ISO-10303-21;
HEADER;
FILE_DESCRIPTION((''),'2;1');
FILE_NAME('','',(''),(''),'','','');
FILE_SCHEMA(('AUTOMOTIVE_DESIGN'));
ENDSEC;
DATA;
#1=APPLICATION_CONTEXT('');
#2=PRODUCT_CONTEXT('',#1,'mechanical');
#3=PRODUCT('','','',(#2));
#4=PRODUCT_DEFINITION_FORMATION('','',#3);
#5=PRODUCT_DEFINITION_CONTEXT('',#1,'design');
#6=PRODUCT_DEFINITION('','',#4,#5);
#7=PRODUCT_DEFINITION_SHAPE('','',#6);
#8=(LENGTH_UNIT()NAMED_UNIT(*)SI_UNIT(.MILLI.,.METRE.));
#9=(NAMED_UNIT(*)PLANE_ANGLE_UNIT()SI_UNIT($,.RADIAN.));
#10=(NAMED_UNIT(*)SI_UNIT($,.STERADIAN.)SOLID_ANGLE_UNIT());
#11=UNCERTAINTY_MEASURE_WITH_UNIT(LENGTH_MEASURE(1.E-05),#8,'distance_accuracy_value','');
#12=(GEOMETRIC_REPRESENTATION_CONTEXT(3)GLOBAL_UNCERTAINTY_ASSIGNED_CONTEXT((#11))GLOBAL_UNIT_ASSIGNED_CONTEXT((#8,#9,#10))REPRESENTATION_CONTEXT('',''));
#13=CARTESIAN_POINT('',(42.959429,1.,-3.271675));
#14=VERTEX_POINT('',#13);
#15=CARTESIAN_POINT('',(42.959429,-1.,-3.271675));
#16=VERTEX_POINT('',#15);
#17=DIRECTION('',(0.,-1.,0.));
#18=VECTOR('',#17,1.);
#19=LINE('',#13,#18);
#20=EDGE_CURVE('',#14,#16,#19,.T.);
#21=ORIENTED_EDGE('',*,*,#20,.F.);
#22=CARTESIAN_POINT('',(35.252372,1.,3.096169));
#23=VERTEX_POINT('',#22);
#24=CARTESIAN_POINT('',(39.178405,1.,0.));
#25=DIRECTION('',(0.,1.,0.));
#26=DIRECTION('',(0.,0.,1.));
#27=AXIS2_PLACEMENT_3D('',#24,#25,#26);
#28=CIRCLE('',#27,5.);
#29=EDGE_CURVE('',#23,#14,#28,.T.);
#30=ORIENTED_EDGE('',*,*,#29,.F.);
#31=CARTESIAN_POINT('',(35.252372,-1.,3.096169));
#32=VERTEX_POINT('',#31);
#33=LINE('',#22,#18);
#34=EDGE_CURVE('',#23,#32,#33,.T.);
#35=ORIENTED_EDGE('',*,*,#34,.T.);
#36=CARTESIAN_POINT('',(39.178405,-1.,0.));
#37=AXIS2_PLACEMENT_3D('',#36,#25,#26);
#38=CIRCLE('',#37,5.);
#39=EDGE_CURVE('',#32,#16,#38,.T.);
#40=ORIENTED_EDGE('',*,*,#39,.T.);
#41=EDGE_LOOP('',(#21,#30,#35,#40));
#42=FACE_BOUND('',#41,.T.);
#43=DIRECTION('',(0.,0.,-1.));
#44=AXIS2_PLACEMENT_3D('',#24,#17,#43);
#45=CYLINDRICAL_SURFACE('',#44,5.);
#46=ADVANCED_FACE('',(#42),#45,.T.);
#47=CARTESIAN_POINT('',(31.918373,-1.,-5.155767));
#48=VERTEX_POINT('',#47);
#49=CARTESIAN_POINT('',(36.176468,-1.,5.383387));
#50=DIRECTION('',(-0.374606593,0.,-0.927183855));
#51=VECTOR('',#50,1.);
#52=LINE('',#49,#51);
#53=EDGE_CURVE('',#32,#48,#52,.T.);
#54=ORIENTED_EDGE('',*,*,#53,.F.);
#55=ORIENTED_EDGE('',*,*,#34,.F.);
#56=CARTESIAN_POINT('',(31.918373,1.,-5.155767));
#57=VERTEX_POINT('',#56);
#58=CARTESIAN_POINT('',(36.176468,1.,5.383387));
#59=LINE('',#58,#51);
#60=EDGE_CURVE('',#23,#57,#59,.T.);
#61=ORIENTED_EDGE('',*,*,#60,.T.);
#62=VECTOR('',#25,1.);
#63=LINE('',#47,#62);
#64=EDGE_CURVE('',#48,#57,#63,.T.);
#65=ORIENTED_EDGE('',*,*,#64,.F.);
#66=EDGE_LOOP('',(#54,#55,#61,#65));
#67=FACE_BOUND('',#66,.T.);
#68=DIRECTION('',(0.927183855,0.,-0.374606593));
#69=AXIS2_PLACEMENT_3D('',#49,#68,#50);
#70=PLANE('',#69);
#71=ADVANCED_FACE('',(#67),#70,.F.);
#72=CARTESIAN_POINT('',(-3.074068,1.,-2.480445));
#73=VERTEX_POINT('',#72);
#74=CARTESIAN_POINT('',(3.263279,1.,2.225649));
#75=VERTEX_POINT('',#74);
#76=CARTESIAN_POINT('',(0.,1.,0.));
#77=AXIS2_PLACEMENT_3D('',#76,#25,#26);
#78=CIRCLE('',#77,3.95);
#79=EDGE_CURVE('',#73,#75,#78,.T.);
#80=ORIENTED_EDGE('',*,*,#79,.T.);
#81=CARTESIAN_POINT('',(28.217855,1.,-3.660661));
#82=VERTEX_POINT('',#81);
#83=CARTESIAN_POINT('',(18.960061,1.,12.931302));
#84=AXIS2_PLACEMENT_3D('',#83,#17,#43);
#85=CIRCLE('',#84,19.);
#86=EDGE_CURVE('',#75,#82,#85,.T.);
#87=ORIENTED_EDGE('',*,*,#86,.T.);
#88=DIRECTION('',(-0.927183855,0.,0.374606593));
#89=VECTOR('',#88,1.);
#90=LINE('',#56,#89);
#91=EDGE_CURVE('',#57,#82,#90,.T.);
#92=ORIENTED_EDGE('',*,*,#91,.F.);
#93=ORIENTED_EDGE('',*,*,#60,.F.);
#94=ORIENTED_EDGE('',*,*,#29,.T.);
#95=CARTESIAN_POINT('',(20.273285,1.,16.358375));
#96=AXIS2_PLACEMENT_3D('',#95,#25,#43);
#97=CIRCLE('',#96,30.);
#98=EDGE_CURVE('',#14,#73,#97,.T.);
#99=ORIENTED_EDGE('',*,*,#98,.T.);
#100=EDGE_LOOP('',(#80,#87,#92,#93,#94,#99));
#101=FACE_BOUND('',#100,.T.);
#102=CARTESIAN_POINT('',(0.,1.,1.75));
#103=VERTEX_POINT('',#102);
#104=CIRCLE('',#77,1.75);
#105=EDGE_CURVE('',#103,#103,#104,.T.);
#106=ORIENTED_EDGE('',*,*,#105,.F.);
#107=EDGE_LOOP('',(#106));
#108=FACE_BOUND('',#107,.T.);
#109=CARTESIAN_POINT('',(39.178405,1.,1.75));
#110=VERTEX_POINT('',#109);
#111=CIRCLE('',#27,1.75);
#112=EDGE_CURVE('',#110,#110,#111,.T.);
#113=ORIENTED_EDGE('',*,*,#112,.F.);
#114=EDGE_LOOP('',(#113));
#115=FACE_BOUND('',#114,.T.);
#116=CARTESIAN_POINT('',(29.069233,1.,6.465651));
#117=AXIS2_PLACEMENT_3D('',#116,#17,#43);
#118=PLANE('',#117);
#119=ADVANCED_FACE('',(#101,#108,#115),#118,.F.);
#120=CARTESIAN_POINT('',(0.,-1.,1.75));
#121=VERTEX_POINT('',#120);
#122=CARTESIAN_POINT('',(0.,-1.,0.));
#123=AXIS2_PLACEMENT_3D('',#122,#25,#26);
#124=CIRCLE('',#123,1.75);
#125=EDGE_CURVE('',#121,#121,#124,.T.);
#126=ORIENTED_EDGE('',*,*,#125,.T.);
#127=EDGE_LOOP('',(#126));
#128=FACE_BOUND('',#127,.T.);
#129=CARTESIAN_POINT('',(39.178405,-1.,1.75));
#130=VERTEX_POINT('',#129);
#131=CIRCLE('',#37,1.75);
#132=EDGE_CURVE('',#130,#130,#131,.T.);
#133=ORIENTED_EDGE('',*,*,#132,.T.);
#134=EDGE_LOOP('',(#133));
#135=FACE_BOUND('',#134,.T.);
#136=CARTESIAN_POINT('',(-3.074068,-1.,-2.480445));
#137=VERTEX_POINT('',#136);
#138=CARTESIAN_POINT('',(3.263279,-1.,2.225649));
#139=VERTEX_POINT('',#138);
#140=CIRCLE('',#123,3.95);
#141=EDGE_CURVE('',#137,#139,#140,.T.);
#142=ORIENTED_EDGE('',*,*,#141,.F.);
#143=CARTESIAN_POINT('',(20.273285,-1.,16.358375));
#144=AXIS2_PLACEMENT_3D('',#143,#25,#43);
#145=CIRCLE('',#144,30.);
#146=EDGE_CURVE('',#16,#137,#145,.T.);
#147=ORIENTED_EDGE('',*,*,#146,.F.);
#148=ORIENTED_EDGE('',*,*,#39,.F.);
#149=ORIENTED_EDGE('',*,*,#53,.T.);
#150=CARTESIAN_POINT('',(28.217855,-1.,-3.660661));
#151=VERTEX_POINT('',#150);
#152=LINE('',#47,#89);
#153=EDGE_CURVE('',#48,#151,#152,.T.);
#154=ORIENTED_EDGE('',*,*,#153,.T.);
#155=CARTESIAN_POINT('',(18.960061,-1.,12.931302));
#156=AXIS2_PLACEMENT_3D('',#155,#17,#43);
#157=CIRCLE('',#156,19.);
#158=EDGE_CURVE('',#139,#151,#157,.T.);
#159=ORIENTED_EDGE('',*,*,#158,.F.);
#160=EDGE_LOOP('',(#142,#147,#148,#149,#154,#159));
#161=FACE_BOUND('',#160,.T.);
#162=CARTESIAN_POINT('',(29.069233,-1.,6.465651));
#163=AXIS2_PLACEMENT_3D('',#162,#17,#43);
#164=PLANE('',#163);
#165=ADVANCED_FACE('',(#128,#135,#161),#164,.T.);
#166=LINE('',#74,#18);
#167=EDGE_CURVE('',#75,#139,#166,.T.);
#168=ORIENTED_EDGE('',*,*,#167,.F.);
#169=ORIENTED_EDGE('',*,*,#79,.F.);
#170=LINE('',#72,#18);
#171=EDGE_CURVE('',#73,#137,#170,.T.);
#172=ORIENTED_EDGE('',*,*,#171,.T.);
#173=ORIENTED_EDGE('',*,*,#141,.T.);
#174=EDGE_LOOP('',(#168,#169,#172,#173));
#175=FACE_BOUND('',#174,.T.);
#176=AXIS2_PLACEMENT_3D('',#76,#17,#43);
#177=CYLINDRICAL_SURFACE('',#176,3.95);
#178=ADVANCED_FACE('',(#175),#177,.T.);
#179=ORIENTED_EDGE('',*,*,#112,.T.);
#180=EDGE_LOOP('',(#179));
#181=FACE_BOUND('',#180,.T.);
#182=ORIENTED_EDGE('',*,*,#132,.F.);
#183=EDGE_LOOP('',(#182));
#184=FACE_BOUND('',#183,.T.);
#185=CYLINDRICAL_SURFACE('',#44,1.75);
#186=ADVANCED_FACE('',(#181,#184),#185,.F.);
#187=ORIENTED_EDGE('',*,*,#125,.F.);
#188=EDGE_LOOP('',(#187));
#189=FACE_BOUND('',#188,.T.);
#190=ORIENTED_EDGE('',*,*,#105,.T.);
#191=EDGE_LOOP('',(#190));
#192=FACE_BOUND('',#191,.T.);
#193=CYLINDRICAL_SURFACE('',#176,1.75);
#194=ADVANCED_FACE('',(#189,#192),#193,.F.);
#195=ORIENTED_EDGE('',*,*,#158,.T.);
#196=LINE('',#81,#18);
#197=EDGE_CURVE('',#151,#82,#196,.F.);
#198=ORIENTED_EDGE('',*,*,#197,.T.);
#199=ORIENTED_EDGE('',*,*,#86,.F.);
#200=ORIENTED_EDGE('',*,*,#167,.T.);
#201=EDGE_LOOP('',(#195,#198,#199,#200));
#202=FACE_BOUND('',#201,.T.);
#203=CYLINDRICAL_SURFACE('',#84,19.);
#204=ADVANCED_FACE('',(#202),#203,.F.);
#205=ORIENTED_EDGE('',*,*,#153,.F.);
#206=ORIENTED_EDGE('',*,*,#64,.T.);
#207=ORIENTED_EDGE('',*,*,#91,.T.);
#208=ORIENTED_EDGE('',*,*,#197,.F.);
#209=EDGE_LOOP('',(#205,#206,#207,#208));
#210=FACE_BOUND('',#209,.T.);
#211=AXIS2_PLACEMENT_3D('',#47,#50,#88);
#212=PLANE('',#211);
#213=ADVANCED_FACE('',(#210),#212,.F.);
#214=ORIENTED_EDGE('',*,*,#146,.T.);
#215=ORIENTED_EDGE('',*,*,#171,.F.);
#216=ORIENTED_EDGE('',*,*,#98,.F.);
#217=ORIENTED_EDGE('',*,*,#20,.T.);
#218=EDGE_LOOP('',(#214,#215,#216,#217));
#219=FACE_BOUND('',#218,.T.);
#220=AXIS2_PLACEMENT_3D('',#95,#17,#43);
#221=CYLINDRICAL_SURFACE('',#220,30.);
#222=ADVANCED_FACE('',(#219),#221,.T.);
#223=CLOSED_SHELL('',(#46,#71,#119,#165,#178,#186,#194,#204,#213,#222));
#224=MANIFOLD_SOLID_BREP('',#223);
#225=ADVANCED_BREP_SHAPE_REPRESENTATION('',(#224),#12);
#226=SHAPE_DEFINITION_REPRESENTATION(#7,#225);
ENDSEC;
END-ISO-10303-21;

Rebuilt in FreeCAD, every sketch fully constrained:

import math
import FreeCAD as App
import Part
import Sketcher
Q = App.Units.Quantity

doc = App.newDocument("Part")
body = doc.addObject("PartDesign::Body", "Body")

# Sketch on XZ plane
sketch1 = body.newObject("Sketcher::SketchObject", "Sketch")
sketch1.AttachmentSupport = (doc.getObject("XZ_Plane"), [""])
sketch1.MapMode = "FlatFace"
sketch1.addGeometry([
    Part.ArcOfCircle(Part.Circle(App.Vector(0, 0, 0), App.Vector(0, 0, 1), 4), math.radians(34), math.radians(219)),  # 0
    Part.ArcOfCircle(Part.Circle(App.Vector(19, 12.9, 0), App.Vector(0, 0, 1), 19), math.radians(-146), math.radians(-33)),  # 1
    Part.ArcOfCircle(Part.Circle(App.Vector(39.2, 0, 0), App.Vector(0, 0, 1), 5), math.radians(-41), math.radians(147)),  # 2
    Part.ArcOfCircle(Part.Circle(App.Vector(20.3, 16.4, 0), App.Vector(0, 0, 1), 30), math.radians(-141), math.radians(-41)),  # 3
    Part.Circle(App.Vector(0, 0, 0), App.Vector(0, 0, 1), 1.8),  # 4
    Part.Circle(App.Vector(39.2, 0, 0), App.Vector(0, 0, 1), 1.8),  # 5
], False)
sketch1.addConstraint([
    Sketcher.Constraint("Tangent", 0, 1, 1, 1),
    Sketcher.Constraint("Tangent", 1, 2, 2, 2),
    Sketcher.Constraint("Tangent", 2, 1, 3, 2),
    Sketcher.Constraint("Tangent", 3, 1, 0, 2),
    Sketcher.Constraint("Coincident", 0, 3, -1, 1),
    Sketcher.Constraint("Coincident", 4, 3, -1, 1),
    Sketcher.Constraint("Coincident", 5, 3, 2, 3),
    Sketcher.Constraint("Equal", 4, 5),
    Sketcher.Constraint("PointOnObject", 2, 3, -1),
    Sketcher.Constraint("Radius", 1, Q("19 mm")),
    Sketcher.Constraint("Radius", 2, Q("5 mm")),
    Sketcher.Constraint("Radius", 3, Q("30 mm")),
    Sketcher.Constraint("Diameter", 4, Q("3.5 mm")),
    Sketcher.Constraint("Radius", 0, Q("3.95 mm")),
    Sketcher.Constraint("DistanceX", -1, 1, 1, 3, Q("18.960061 mm")),
])
pad1 = body.newObject("PartDesign::Pad", "Pad")
pad1.Profile = sketch1
pad1.Length = 2
pad1.Midplane = True

# Sketch on XZ plane
sketch2 = body.newObject("Sketcher::SketchObject", "Sketch001")
sketch2.AttachmentSupport = (doc.getObject("XZ_Plane"), [""])
sketch2.MapMode = "FlatFace"
sketch2.addGeometry([
    Part.LineSegment(App.Vector(36, 5, 0), App.Vector(32, -5, 0)),
    Part.LineSegment(App.Vector(32, -5, 0), App.Vector(14, 2, 0)),
    Part.LineSegment(App.Vector(14, 2, 0), App.Vector(18, 13, 0)),
    Part.LineSegment(App.Vector(18, 13, 0), App.Vector(36, 5, 0)),
], False)
sketch2.addConstraint([
    Sketcher.Constraint("Coincident", 0, 2, 1, 1),
    Sketcher.Constraint("Coincident", 1, 2, 2, 1),
    Sketcher.Constraint("Coincident", 2, 2, 3, 1),
    Sketcher.Constraint("Coincident", 3, 2, 0, 1),
    Sketcher.Constraint("Perpendicular", 0, 1),
    Sketcher.Constraint("Perpendicular", 1, 2),
    Sketcher.Constraint("Perpendicular", 2, 3),
    Sketcher.Constraint("Angle", 0, Q("-112 deg")),
    Sketcher.Constraint("Distance", 1, Q("19.07665 mm")),
    Sketcher.Constraint("DistanceX", -1, 1, 1, 2, Q("14.230811 mm")),
    Sketcher.Constraint("DistanceY", -1, 1, 1, 2, Q("1.990472 mm")),
    Sketcher.Constraint("Distance", 0, Q("11.366844 mm")),
])
pocket1 = body.newObject("PartDesign::Pocket", "Pocket")
pocket1.Profile = sketch2
pocket1.Type = "ThroughAll"
pocket1.Midplane = True

doc.recompute()
